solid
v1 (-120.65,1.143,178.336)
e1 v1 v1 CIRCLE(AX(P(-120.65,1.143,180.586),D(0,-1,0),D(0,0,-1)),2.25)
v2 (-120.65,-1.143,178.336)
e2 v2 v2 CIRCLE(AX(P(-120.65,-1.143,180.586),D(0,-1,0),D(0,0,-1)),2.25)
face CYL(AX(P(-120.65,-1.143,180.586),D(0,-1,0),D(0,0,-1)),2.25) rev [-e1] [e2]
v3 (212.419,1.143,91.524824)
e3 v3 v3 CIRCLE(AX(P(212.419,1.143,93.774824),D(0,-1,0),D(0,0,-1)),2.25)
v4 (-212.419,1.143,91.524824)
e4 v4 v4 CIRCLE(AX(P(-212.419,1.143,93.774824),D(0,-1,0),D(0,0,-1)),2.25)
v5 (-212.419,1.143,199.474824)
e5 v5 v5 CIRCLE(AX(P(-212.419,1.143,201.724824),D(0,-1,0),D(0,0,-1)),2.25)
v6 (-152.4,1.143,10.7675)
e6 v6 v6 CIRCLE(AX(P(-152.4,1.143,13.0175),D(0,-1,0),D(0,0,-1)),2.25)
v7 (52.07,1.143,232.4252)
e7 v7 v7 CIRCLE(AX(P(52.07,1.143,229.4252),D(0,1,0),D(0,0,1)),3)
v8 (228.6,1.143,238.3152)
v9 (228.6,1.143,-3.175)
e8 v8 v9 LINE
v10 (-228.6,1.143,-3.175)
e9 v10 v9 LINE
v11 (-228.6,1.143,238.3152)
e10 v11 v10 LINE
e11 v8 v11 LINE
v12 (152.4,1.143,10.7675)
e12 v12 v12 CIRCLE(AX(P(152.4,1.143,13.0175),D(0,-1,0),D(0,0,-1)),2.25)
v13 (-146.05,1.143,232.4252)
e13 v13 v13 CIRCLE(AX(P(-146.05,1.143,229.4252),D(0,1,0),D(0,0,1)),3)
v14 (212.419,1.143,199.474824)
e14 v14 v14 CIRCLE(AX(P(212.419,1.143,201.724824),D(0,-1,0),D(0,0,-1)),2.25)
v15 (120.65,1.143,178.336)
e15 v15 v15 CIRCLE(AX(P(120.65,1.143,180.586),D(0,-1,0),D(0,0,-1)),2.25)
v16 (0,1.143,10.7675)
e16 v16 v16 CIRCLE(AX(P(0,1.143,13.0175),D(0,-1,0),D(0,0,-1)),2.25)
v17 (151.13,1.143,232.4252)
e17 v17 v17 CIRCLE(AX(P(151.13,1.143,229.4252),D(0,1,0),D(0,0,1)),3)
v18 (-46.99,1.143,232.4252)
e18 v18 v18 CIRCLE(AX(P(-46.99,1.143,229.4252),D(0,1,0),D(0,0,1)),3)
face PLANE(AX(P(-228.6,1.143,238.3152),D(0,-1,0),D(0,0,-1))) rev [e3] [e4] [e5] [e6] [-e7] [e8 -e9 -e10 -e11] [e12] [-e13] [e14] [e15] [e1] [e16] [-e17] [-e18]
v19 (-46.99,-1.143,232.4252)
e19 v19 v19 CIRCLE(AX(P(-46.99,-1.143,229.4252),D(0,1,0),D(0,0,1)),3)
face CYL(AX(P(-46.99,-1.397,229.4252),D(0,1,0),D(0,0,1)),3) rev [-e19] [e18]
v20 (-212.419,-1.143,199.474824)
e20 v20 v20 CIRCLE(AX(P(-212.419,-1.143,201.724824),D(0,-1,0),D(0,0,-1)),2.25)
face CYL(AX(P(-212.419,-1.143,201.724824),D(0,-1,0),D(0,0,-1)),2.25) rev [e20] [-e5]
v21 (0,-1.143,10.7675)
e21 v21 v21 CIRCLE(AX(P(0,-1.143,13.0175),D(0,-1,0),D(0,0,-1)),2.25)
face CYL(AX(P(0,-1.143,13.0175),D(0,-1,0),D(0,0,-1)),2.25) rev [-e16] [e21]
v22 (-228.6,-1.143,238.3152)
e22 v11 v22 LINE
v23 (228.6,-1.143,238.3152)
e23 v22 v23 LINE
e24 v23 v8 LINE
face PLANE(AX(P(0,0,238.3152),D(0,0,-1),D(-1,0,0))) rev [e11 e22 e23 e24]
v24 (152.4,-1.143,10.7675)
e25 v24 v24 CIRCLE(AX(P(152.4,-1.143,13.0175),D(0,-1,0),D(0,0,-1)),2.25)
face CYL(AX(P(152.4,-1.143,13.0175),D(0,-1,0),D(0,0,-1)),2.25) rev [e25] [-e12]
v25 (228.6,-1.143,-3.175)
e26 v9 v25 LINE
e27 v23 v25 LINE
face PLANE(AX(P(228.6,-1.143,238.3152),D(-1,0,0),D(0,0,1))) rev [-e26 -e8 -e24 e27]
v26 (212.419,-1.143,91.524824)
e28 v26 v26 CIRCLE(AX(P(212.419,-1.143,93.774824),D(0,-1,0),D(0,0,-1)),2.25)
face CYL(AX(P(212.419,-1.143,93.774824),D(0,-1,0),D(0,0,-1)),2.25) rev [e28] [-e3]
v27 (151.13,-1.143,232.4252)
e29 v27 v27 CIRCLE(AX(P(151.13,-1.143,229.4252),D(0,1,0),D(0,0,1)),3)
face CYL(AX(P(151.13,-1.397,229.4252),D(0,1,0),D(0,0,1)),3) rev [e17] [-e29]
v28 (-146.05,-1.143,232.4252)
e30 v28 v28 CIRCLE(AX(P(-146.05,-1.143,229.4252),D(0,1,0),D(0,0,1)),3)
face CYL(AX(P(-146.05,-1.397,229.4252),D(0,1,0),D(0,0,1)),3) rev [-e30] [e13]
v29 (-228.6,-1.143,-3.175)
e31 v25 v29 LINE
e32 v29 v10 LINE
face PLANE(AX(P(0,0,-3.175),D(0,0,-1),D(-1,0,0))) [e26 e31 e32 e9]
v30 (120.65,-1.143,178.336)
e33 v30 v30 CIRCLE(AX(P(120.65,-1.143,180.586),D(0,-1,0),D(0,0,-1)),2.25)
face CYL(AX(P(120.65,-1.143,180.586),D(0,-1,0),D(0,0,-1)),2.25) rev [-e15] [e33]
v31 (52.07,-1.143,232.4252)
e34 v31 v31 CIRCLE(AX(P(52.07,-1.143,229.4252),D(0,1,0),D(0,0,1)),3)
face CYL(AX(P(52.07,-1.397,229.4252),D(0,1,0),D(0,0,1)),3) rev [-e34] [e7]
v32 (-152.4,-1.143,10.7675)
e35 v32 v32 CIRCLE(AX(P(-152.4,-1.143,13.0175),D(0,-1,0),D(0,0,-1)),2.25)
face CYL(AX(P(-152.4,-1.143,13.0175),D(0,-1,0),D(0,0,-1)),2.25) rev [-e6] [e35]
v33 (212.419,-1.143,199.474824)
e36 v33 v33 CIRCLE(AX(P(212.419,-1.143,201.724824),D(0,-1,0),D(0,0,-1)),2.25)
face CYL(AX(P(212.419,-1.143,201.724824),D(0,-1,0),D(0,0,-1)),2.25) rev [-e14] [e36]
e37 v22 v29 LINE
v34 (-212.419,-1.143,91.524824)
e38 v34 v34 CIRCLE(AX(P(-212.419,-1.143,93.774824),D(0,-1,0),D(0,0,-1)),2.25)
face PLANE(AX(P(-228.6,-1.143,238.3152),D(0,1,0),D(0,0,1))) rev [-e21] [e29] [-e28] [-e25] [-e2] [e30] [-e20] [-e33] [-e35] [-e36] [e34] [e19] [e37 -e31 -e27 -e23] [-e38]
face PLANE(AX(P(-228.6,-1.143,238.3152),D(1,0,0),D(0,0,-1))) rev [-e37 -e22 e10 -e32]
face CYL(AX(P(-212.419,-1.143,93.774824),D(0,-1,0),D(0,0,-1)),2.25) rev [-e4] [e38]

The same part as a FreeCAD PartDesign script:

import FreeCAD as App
import Part
import Sketcher
Q = App.Units.Quantity

doc = App.newDocument("Part")
params = doc.addObject("Spreadsheet::Sheet", "Params")
for row, (alias, value) in enumerate([
    ("sketch1_width", "18 in"),
    ("sketch1_height", "0.09 in"),
    ("pad1_length", "238.3152 mm"),
    ("sketch2_width", "18 in"),
    ("sketch2_height", "0.09 in"),
    ("pad2_length", "0.125 in"),
    ("pocket1_length", "0.1 in"),
    ("linearpattern_pitch", "3.9 in"),
    ("hole_diameter", "4.5 mm"),
], start=1):
    params.set(f"A{row}", alias)
    params.set(f"B{row}", "=" + value)
    params.setAlias(f"B{row}", alias)

body = doc.addObject("PartDesign::Body", "Body")

sketch1 = doc.addObject("Sketcher::SketchObject", "Sketch")
body.addObject(sketch1)
sketch1.AttachmentSupport = (doc.XY_Plane, [""])
sketch1.MapMode = "FlatFace"
sketch1.addGeometry([
    Part.LineSegment(App.Vector(-228.6, 1.1, 0), App.Vector(-228.6, -1.1, 0)),
    Part.LineSegment(App.Vector(-228.6, -1.1, 0), App.Vector(228.6, -1.1, 0)),
    Part.LineSegment(App.Vector(228.6, -1.1, 0), App.Vector(228.6, 1.1, 0)),
    Part.LineSegment(App.Vector(228.6, 1.1, 0), App.Vector(-228.6, 1.1, 0)),
], False)
sketch1.addConstraint([
    Sketcher.Constraint("Coincident", 0, 2, 1, 1),
    Sketcher.Constraint("Coincident", 1, 2, 2, 1),
    Sketcher.Constraint("Coincident", 2, 2, 3, 1),
    Sketcher.Constraint("Coincident", 3, 2, 0, 1),
    Sketcher.Constraint("Vertical", 0),
    Sketcher.Constraint("Horizontal", 1),
    Sketcher.Constraint("Vertical", 2),
    Sketcher.Constraint("Horizontal", 3),
    Sketcher.Constraint("Symmetric", 0, 2, 2, 2, -1, 1),
    Sketcher.Constraint("DistanceX", 1, 1, 1, 2, Q("18 in")),
    Sketcher.Constraint("DistanceY", 0, 2, 0, 1, Q("0.09 in")),
])
sketch1.setExpression("Constraints[9]", "Params.sketch1_width")
sketch1.setExpression("Constraints[10]", "Params.sketch1_height")
pad1 = doc.addObject("PartDesign::Pad", "Pad")
body.addObject(pad1)
pad1.Profile = sketch1
pad1.setExpression("Length", "Params.pad1_length")

sketch2 = doc.addObject("Sketcher::SketchObject", "Sketch001")
body.addObject(sketch2)
sketch2.AttachmentSupport = (doc.XY_Plane, [""])
sketch2.MapMode = "FlatFace"
sketch2.addGeometry([
    Part.LineSegment(App.Vector(228.6, 1.1, 0), App.Vector(228.6, -1.1, 0)),
    Part.LineSegment(App.Vector(228.6, -1.1, 0), App.Vector(-228.6, -1.1, 0)),
    Part.LineSegment(App.Vector(-228.6, -1.1, 0), App.Vector(-228.6, 1.1, 0)),
    Part.LineSegment(App.Vector(-228.6, 1.1, 0), App.Vector(228.6, 1.1, 0)),
], False)
sketch2.addConstraint([
    Sketcher.Constraint("Coincident", 0, 2, 1, 1),
    Sketcher.Constraint("Coincident", 1, 2, 2, 1),
    Sketcher.Constraint("Coincident", 2, 2, 3, 1),
    Sketcher.Constraint("Coincident", 3, 2, 0, 1),
    Sketcher.Constraint("Vertical", 0),
    Sketcher.Constraint("Horizontal", 1),
    Sketcher.Constraint("Vertical", 2),
    Sketcher.Constraint("Horizontal", 3),
    Sketcher.Constraint("Symmetric", 0, 2, 2, 2, -1, 1),
    Sketcher.Constraint("DistanceX", 1, 2, 1, 1, Q("18 in")),
    Sketcher.Constraint("DistanceY", 0, 2, 0, 1, Q("0.09 in")),
])
sketch2.setExpression("Constraints[9]", "Params.sketch2_width")
sketch2.setExpression("Constraints[10]", "Params.sketch2_height")
pad2 = doc.addObject("PartDesign::Pad", "Pad001")
body.addObject(pad2)
pad2.Profile = sketch2
pad2.setExpression("Length", "Params.pad2_length")
pad2.Reversed = True

sketch3 = doc.addObject("Sketcher::SketchObject", "Sketch002")
body.addObject(sketch3)
sketch3.AttachmentSupport = (doc.XZ_Plane, [""])
sketch3.MapMode = "FlatFace"
sketch3.AttachmentOffset = App.Placement(App.Vector(0, 0, -0.045 * 25.4), App.Rotation())
sketch3.addGeometry(Part.Circle(App.Vector(-146.1, 229.4, 0), App.Vector(0, 0, 1), 3), False)
sketch3.addConstraint([
    Sketcher.Constraint("Diameter", 0, 6.0),
    Sketcher.Constraint("DistanceX", 0, 3, -1, 1, Q("5.75 in")),
    Sketcher.Constraint("DistanceY", -1, 1, 0, 3, 229.4252),
])
pocket1 = doc.addObject("PartDesign::Pocket", "Pocket")
body.addObject(pocket1)
pocket1.Profile = sketch3
pocket1.setExpression("Length", "Params.pocket1_length")
pocket1.Reversed = True
doc.recompute()

linearpattern = doc.addObject("PartDesign::LinearPattern", "LinearPattern")
body.addObject(linearpattern)
linearpattern.Originals = [pocket1]
linearpattern.Direction = (doc.X_Axis, [""])
linearpattern.Mode = "offset"
linearpattern.setExpression("Offset", "Params.linearpattern_pitch")
linearpattern.Occurrences = 4
body.Tip = linearpattern

sketch4 = doc.addObject("Sketcher::SketchObject", "Sketch003")
body.addObject(sketch4)
sketch4.AttachmentSupport = (doc.XZ_Plane, [""])
sketch4.MapMode = "FlatFace"
sketch4.AttachmentOffset = App.Placement(App.Vector(0, 0, 0.045 * 25.4), App.Rotation())
sketch4.addGeometry([
    Part.Circle(App.Vector(-212.4, 93.8, 0), App.Vector(0, 0, 1), 2.2),
    Part.Circle(App.Vector(-152.4, 13, 0), App.Vector(0, 0, 1), 2.2),
    Part.Circle(App.Vector(0, 13, 0), App.Vector(0, 0, 1), 2.2),
    Part.Circle(App.Vector(152.4, 13, 0), App.Vector(0, 0, 1), 2.2),
    Part.Circle(App.Vector(212.4, 93.8, 0), App.Vector(0, 0, 1), 2.2),
    Part.Circle(App.Vector(212.4, 201.7, 0), App.Vector(0, 0, 1), 2.2),
    Part.Circle(App.Vector(120.7, 180.6, 0), App.Vector(0, 0, 1), 2.2),
    Part.Circle(App.Vector(-120.7, 180.6, 0), App.Vector(0, 0, 1), 2.2),
    Part.Circle(App.Vector(-212.4, 201.7, 0), App.Vector(0, 0, 1), 2.2),
], False)
sketch4.addConstraint([
    Sketcher.Constraint("Equal", 0, 1),
    Sketcher.Constraint("Equal", 1, 2),
    Sketcher.Constraint("Equal", 2, 3),
    Sketcher.Constraint("Equal", 3, 4),
    Sketcher.Constraint("Equal", 4, 5),
    Sketcher.Constraint("Equal", 5, 6),
    Sketcher.Constraint("Equal", 6, 7),
    Sketcher.Constraint("Equal", 7, 8),
    Sketcher.Constraint("Symmetric", 1, 3, 3, 3, -2),
    Sketcher.Constraint("Symmetric", 0, 3, 4, 3, -2),
    Sketcher.Constraint("Symmetric", 6, 3, 7, 3, -2),
    Sketcher.Constraint("Symmetric", 5, 3, 8, 3, -2),
    Sketcher.Constraint("PointOnObject", 2, 3, -2),
    Sketcher.Constraint("Horizontal", 1, 3, 2, 3),
    Sketcher.Constraint("Vertical", 4, 3, 5, 3),
    Sketcher.Constraint("DistanceX", 1, 3, -1, 1, Q("6 in")),
    Sketcher.Constraint("DistanceX", 7, 3, 6, 3, Q("9.5 in")),
    Sketcher.Constraint("Diameter", 0, 4.5),
    Sketcher.Constraint("DistanceY", 4, 3, 5, 3, Q("4.25 in")),
    Sketcher.Constraint("DistanceY", -1, 1, 1, 3, Q("0.5125 in")),
    Sketcher.Constraint("DistanceX", 0, 3, -1, 1, 212.419),
    Sketcher.Constraint("DistanceY", -1, 1, 6, 3, 180.586),
    Sketcher.Constraint("DistanceY", -1, 1, 0, 3, 93.774824),
])
doc.recompute()
hole = doc.addObject("PartDesign::Hole", "Hole")
body.addObject(hole)
hole.Profile = sketch4
hole.ThreadType = "None"
hole.setExpression("Diameter", "Params.hole_diameter")
hole.DepthType = "ThroughAll"

doc.recompute()
